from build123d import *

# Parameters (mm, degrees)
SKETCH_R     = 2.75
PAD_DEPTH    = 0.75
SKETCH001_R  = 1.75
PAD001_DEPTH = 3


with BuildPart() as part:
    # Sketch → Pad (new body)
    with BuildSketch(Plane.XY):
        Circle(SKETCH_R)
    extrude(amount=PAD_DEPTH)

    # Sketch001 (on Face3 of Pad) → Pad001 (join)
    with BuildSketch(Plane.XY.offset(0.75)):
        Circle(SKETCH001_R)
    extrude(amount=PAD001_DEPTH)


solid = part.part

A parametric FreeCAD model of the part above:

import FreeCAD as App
import Part
import Sketcher

V = App.Vector
Q = App.Units.Quantity

doc = App.newDocument("Part")
body = doc.addObject("PartDesign::Body", "Body")

# Sketch on XY plane
sketch1 = body.newObject("Sketcher::SketchObject", "Sketch")
sketch1.AttachmentSupport = (doc.getObject("XY_Plane"), [""])
sketch1.MapMode = "FlatFace"
sketch1.addGeometry(Part.Circle(V(0, 0, 0), V(0, 0, 1), 2.75), False)
sketch1.addConstraint([
    Sketcher.Constraint("Coincident", 0, 3, -1, 1),
    Sketcher.Constraint("Diameter", 0, Q("5.5 mm")),
])
pad1 = body.newObject("PartDesign::Pad", "Pad")
pad1.Profile = sketch1
pad1.Length = 0.75

# Sketch on XY plane
sketch2 = body.newObject("Sketcher::SketchObject", "Sketch001")
sketch2.AttachmentSupport = (doc.getObject("XY_Plane"), [""])
sketch2.MapMode = "FlatFace"
sketch2.AttachmentOffset = App.Placement(V(0, 0, 0.75), App.Rotation())
sketch2.addGeometry(Part.Circle(V(0, 0, 0), V(0, 0, 1), 1.75), False)
sketch2.addConstraint([
    Sketcher.Constraint("Coincident", 0, 3, -1, 1),
    Sketcher.Constraint("Diameter", 0, Q("3.5 mm")),
])
pad2 = body.newObject("PartDesign::Pad", "Pad001")
pad2.Profile = sketch2
pad2.Length = 3

doc.recompute()
